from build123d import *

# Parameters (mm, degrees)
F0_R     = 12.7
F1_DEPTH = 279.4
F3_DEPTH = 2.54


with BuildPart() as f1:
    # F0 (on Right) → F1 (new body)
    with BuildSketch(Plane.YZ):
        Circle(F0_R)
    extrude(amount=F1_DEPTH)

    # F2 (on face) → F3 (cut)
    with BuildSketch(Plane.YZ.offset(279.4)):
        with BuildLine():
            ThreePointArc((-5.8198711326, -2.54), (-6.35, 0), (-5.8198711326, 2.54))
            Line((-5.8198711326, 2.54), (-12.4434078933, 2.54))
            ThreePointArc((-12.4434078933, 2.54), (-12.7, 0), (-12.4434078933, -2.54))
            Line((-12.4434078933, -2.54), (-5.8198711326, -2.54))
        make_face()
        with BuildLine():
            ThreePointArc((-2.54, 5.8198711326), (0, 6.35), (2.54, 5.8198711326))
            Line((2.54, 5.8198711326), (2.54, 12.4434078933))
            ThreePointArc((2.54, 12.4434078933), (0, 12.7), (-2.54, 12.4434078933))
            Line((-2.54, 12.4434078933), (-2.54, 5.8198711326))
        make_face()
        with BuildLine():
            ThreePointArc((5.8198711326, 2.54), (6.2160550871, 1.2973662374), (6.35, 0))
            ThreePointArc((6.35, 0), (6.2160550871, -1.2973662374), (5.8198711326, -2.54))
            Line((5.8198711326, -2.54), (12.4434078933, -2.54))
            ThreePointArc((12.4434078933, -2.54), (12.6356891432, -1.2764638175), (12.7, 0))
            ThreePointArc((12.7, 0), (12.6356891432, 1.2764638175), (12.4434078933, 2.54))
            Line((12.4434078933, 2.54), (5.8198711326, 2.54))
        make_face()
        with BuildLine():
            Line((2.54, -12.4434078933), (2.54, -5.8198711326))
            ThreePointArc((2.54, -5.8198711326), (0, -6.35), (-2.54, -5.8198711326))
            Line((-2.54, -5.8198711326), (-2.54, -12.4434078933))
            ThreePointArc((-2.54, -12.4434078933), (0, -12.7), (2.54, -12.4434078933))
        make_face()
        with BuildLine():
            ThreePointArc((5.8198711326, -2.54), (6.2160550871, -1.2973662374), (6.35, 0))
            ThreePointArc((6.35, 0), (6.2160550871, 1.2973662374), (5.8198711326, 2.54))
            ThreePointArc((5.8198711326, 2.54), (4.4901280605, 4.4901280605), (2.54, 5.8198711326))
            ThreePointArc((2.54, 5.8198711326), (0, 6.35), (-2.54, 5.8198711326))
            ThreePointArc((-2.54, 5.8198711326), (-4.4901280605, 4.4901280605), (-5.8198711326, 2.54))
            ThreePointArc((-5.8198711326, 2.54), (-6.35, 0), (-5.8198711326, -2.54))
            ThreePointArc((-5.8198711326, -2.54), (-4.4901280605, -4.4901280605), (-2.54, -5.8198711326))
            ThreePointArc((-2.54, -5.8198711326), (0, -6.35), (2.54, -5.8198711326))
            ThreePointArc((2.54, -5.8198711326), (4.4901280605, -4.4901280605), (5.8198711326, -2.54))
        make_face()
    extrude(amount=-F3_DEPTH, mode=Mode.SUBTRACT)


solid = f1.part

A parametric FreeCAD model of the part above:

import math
import FreeCAD as App
import Part
import Sketcher
Q = App.Units.Quantity

doc = App.newDocument("Part")
params = doc.addObject("Spreadsheet::Sheet", "Params")
for row, (alias, value) in enumerate([
    ("sketch1_diameter", "1 in"),
    ("pad1_length", "11 in"),
    ("sketch2_radius", "0.5 in"),
    ("sketch2_radius2", "0.25 in"),
    ("pocket1_length", "0.1 in"),
], start=1):
    params.set(f"A{row}", alias)
    params.set(f"B{row}", "=" + value)
    params.setAlias(f"B{row}", alias)

body = doc.addObject("PartDesign::Body", "Body")

# Sketch on YZ plane
sketch1 = body.newObject("Sketcher::SketchObject", "Sketch")
sketch1.AttachmentSupport = (doc.getObject("YZ_Plane"), [""])
sketch1.MapMode = "FlatFace"
sketch1.addGeometry(Part.Circle(App.Vector(0, 0, 0), App.Vector(0, 0, 1), 13), False)
sketch1.addConstraint(Sketcher.Constraint("Coincident", 0, 3, -1, 1))
sketch1.addConstraint(Sketcher.Constraint("Diameter", 0, Q("1 in")))
sketch1.setExpression("Constraints[1]", "Params.sketch1_diameter")
pad1 = body.newObject("PartDesign::Pad", "Pad")
pad1.Profile = sketch1
pad1.setExpression("Length", "Params.pad1_length")

# Sketch on YZ plane
sketch2 = body.newObject("Sketcher::SketchObject", "Sketch001")
sketch2.AttachmentSupport = (doc.getObject("YZ_Plane"), [""])
sketch2.MapMode = "FlatFace"
sketch2.AttachmentOffset = App.Placement(App.Vector(0, 0, 11 * 25.4), App.Rotation())
sketch2.addGeometry(Part.LineSegment(App.Vector(-5.8, 2.5, 0), App.Vector(-12.4, 2.5, 0)), False)
sketch2.addGeometry(Part.ArcOfCircle(Part.Circle(App.Vector(0, 0, 0), App.Vector(0, 0, 1), 12.7), math.radians(168), math.radians(192)), False)
sketch2.addGeometry(Part.LineSegment(App.Vector(-12.4, -2.5, 0), App.Vector(-5.8, -2.5, 0)), False)
sketch2.addGeometry(Part.ArcOfCircle(Part.Circle(App.Vector(0, 0, 0), App.Vector(0, 0, 1), 6.4), math.radians(-156), math.radians(-114)), False)
sketch2.addGeometry(Part.LineSegment(App.Vector(-2.5, -5.8, 0), App.Vector(-2.5, -12.4, 0)), False)
sketch2.addGeometry(Part.ArcOfCircle(Part.Circle(App.Vector(0, 0, 0), App.Vector(0, 0, 1), 12.7), math.radians(-102), math.radians(-78)), False)
sketch2.addGeometry(Part.LineSegment(App.Vector(2.5, -12.4, 0), App.Vector(2.5, -5.8, 0)), False)
sketch2.addGeometry(Part.ArcOfCircle(Part.Circle(App.Vector(0, 0, 0), App.Vector(0, 0, 1), 6.4), math.radians(-66), math.radians(-24)), False)
sketch2.addGeometry(Part.LineSegment(App.Vector(5.8, -2.5, 0), App.Vector(12.4, -2.5, 0)), False)
sketch2.addGeometry(Part.ArcOfCircle(Part.Circle(App.Vector(0, 0, 0), App.Vector(0, 0, 1), 12.7), math.radians(-11.54), math.radians(0)), False)
sketch2.addGeometry(Part.ArcOfCircle(Part.Circle(App.Vector(0, 0, 0), App.Vector(0, 0, 1), 12.7), math.radians(0), math.radians(11.54)), False)
sketch2.addGeometry(Part.LineSegment(App.Vector(12.4, 2.5, 0), App.Vector(5.8, 2.5, 0)), False)
sketch2.addGeometry(Part.ArcOfCircle(Part.Circle(App.Vector(0, 0, 0), App.Vector(0, 0, 1), 6.4), math.radians(24), math.radians(66)), False)
sketch2.addGeometry(Part.LineSegment(App.Vector(2.5, 5.8, 0), App.Vector(2.5, 12.4, 0)), False)
sketch2.addGeometry(Part.ArcOfCircle(Part.Circle(App.Vector(0, 0, 0), App.Vector(0, 0, 1), 12.7), math.radians(78), math.radians(102)), False)
sketch2.addGeometry(Part.LineSegment(App.Vector(-2.5, 12.4, 0), App.Vector(-2.5, 5.8, 0)), False)
sketch2.addGeometry(Part.ArcOfCircle(Part.Circle(App.Vector(0, 0, 0), App.Vector(0, 0, 1), 6.4), math.radians(114), math.radians(156)), False)
sketch2.addConstraint(Sketcher.Constraint("Coincident", 0, 2, 1, 1))
sketch2.addConstraint(Sketcher.Constraint("Coincident", 1, 2, 2, 1))
sketch2.addConstraint(Sketcher.Constraint("Coincident", 2, 2, 3, 1))
sketch2.addConstraint(Sketcher.Constraint("Coincident", 3, 2, 4, 1))
sketch2.addConstraint(Sketcher.Constraint("Coincident", 4, 2, 5, 1))
sketch2.addConstraint(Sketcher.Constraint("Coincident", 5, 2, 6, 1))
sketch2.addConstraint(Sketcher.Constraint("Coincident", 6, 2, 7, 1))
sketch2.addConstraint(Sketcher.Constraint("Coincident", 7, 2, 8, 1))
sketch2.addConstraint(Sketcher.Constraint("Coincident", 8, 2, 9, 1))
sketch2.addConstraint(Sketcher.Constraint("Tangent", 9, 2, 10, 1))
sketch2.addConstraint(Sketcher.Constraint("Coincident", 10, 2, 11, 1))
sketch2.addConstraint(Sketcher.Constraint("Coincident", 11, 2, 12, 1))
sketch2.addConstraint(Sketcher.Constraint("Coincident", 12, 2, 13, 1))
sketch2.addConstraint(Sketcher.Constraint("Coincident", 13, 2, 14, 1))
sketch2.addConstraint(Sketcher.Constraint("Coincident", 14, 2, 15, 1))
sketch2.addConstraint(Sketcher.Constraint("Coincident", 15, 2, 16, 1))
sketch2.addConstraint(Sketcher.Constraint("Coincident", 16, 2, 0, 1))
sketch2.addConstraint(Sketcher.Constraint("Horizontal", 0))
sketch2.addConstraint(Sketcher.Constraint("Horizontal", 2))
sketch2.addConstraint(Sketcher.Constraint("Vertical", 4))
sketch2.addConstraint(Sketcher.Constraint("Vertical", 6))
sketch2.addConstraint(Sketcher.Constraint("Horizontal", 8))
sketch2.addConstraint(Sketcher.Constraint("Horizontal", 11))
sketch2.addConstraint(Sketcher.Constraint("Vertical", 13))
sketch2.addConstraint(Sketcher.Constraint("Vertical", 15))
sketch2.addConstraint(Sketcher.Constraint("Coincident", 1, 3, -1, 1))
sketch2.addConstraint(Sketcher.Constraint("Coincident", 3, 3, -1, 1))
sketch2.addConstraint(Sketcher.Constraint("Coincident", 5, 3, -1, 1))
sketch2.addConstraint(Sketcher.Constraint("Coincident", 7, 3, -1, 1))
sketch2.addConstraint(Sketcher.Constraint("Coincident", 9, 3, -1, 1))
sketch2.addConstraint(Sketcher.Constraint("Coincident", 12, 3, -1, 1))
sketch2.addConstraint(Sketcher.Constraint("Coincident", 14, 3, -1, 1))
sketch2.addConstraint(Sketcher.Constraint("Coincident", 16, 3, -1, 1))
sketch2.addConstraint(Sketcher.Constraint("Equal", 1, 5))
sketch2.addConstraint(Sketcher.Constraint("Equal", 3, 7))
sketch2.addConstraint(Sketcher.Constraint("Equal", 5, 9))
sketch2.addConstraint(Sketcher.Constraint("Equal", 9, 10))
sketch2.addConstraint(Sketcher.Constraint("Equal", 7, 12))
sketch2.addConstraint(Sketcher.Constraint("Equal", 10, 14))
sketch2.addConstraint(Sketcher.Constraint("Equal", 12, 16))
sketch2.addConstraint(Sketcher.Constraint("PointOnObject", 9, 2, -1))
sketch2.addConstraint(Sketcher.Constraint("Horizontal", 4, 2, 5, 2))
sketch2.addConstraint(Sketcher.Constraint("Horizontal", 2, 2, 7, 2))
sketch2.addConstraint(Sketcher.Constraint("Horizontal", 0, 2, 10, 2))
sketch2.addConstraint(Sketcher.Constraint("Horizontal", 13, 2, 14, 2))
sketch2.addConstraint(Sketcher.Constraint("Vertical", 0, 2, 1, 2))
sketch2.addConstraint(Sketcher.Constraint("Vertical", 6, 2, 12, 2))
sketch2.addConstraint(Sketcher.Constraint("Equal", 11, 4))
sketch2.addConstraint(Sketcher.Constraint("Radius", 1, Q("0.5 in")))
sketch2.addConstraint(Sketcher.Constraint("Radius", 3, Q("0.25 in")))
sketch2.addConstraint(Sketcher.Constraint("DistanceY", -1, 1, 0, 2, Q("0.1 in")))
sketch2.setExpression("Constraints[48]", "Params.sketch2_radius")
sketch2.setExpression("Constraints[49]", "Params.sketch2_radius2")
pocket1 = body.newObject("PartDesign::Pocket", "Pocket")
pocket1.Profile = sketch2
pocket1.setExpression("Length", "Params.pocket1_length")

doc.recompute()
